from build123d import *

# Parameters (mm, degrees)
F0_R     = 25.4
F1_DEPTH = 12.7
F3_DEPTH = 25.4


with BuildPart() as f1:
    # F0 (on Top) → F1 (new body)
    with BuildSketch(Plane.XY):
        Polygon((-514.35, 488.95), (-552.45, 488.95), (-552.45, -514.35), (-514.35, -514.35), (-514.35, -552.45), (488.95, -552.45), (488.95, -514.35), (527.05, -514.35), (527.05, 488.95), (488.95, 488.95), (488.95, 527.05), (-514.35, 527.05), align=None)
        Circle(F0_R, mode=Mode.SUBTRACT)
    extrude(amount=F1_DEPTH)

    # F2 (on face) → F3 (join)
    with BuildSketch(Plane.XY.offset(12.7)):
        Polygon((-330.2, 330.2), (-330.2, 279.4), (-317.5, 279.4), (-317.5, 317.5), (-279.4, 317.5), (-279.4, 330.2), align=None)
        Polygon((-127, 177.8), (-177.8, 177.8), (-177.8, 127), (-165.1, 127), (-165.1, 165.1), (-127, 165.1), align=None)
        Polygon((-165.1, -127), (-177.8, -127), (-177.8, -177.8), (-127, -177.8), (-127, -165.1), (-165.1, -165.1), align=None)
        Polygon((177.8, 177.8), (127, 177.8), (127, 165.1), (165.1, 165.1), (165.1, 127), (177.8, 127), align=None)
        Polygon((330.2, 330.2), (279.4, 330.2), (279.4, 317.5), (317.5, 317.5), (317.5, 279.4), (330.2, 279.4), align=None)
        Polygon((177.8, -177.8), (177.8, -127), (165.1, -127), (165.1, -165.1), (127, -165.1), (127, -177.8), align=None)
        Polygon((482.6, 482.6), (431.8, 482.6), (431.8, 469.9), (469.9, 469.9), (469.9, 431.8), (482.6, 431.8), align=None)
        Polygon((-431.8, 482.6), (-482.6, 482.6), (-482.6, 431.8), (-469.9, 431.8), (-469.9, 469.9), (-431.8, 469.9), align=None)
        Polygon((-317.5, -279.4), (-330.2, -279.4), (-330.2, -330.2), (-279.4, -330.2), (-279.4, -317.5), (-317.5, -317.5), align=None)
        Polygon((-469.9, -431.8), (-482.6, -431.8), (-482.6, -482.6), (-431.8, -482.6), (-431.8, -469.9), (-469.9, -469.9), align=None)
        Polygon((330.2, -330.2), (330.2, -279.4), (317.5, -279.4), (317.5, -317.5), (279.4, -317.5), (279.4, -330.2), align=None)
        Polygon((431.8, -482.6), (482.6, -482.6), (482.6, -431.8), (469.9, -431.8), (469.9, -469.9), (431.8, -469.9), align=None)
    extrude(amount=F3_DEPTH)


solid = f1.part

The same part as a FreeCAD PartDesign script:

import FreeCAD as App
import Part
import Sketcher
Q = App.Units.Quantity

doc = App.newDocument("Part")
params = doc.addObject("Spreadsheet::Sheet", "Params")
for row, (alias, value) in enumerate([
    ("sketch1_diameter", "2 in"),
    ("sketch1_width", "1.5 in"),
    ("sketch1_width2", "39.5 in"),
    ("pad1_length", "0.5 in"),
    ("sketch2_width", "2 in"),
    ("sketch2_width2", "0.5 in"),
    ("pad2_length", "1 in"),
], start=1):
    params.set(f"A{row}", alias)
    params.set(f"B{row}", "=" + value)
    params.setAlias(f"B{row}", alias)

body = doc.addObject("PartDesign::Body", "Body")

# Sketch on XY plane
sketch1 = body.newObject("Sketcher::SketchObject", "Sketch")
sketch1.AttachmentSupport = (doc.getObject("XY_Plane"), [""])
sketch1.MapMode = "FlatFace"
sketch1.addGeometry([
    Part.LineSegment(App.Vector(-514, 489, 0), App.Vector(-552, 489, 0)),  # 0
    Part.LineSegment(App.Vector(-552, 489, 0), App.Vector(-552, -514, 0)),  # 1
    Part.LineSegment(App.Vector(-552, -514, 0), App.Vector(-514, -514, 0)),  # 2
    Part.LineSegment(App.Vector(-514, -514, 0), App.Vector(-514, -552, 0)),  # 3
    Part.LineSegment(App.Vector(-514, -552, 0), App.Vector(489, -552, 0)),  # 4
    Part.LineSegment(App.Vector(489, -552, 0), App.Vector(489, -514, 0)),  # 5
    Part.LineSegment(App.Vector(489, -514, 0), App.Vector(527, -514, 0)),  # 6
    Part.LineSegment(App.Vector(527, -514, 0), App.Vector(527, 489, 0)),  # 7
    Part.LineSegment(App.Vector(527, 489, 0), App.Vector(489, 489, 0)),  # 8
    Part.LineSegment(App.Vector(489, 489, 0), App.Vector(489, 527, 0)),  # 9
    Part.LineSegment(App.Vector(489, 527, 0), App.Vector(-514, 527, 0)),  # 10
    Part.LineSegment(App.Vector(-514, 527, 0), App.Vector(-514, 489, 0)),  # 11
    Part.Circle(App.Vector(0, 0, 0), App.Vector(0, 0, 1), 25),  # 12
], False)
sketch1.addConstraint([
    Sketcher.Constraint("Coincident", 0, 2, 1, 1),
    Sketcher.Constraint("Coincident", 1, 2, 2, 1),
    Sketcher.Constraint("Coincident", 2, 2, 3, 1),
    Sketcher.Constraint("Coincident", 3, 2, 4, 1),
    Sketcher.Constraint("Coincident", 4, 2, 5, 1),
    Sketcher.Constraint("Coincident", 5, 2, 6, 1),
    Sketcher.Constraint("Coincident", 6, 2, 7, 1),
    Sketcher.Constraint("Coincident", 7, 2, 8, 1),
    Sketcher.Constraint("Coincident", 8, 2, 9, 1),
    Sketcher.Constraint("Coincident", 9, 2, 10, 1),
    Sketcher.Constraint("Coincident", 10, 2, 11, 1),
    Sketcher.Constraint("Coincident", 11, 2, 0, 1),
    Sketcher.Constraint("Horizontal", 0),
    Sketcher.Constraint("Vertical", 1),
    Sketcher.Constraint("Horizontal", 2),
    Sketcher.Constraint("Vertical", 3),
    Sketcher.Constraint("Horizontal", 4),
    Sketcher.Constraint("Vertical", 5),
    Sketcher.Constraint("Horizontal", 6),
    Sketcher.Constraint("Vertical", 7),
    Sketcher.Constraint("Horizontal", 8),
    Sketcher.Constraint("Vertical", 9),
    Sketcher.Constraint("Horizontal", 10),
    Sketcher.Constraint("Vertical", 11),
    Sketcher.Constraint("Coincident", 12, 3, -1, 1),
    Sketcher.Constraint("Horizontal", 2, 2, 5, 2),
    Sketcher.Constraint("Horizontal", 0, 2, 7, 2),
    Sketcher.Constraint("Vertical", 5, 2, 8, 2),
    Sketcher.Constraint("Vertical", 3, 2, 10, 2),
    Sketcher.Constraint("Equal", 2, 6),
    Sketcher.Constraint("Equal", 10, 1),
    Sketcher.Constraint("Equal", 8, 3),
    Sketcher.Constraint("Equal", 5, 9),
    Sketcher.Constraint("Diameter", 12, Q("2 in")),
    Sketcher.Constraint("DistanceX", 0, 2, 0, 1, Q("1.5 in")),
    Sketcher.Constraint("DistanceX", 4, 1, 4, 2, Q("39.5 in")),
    Sketcher.Constraint("DistanceX", 0, 2, -1, 1, Q("21.75 in")),
    Sketcher.Constraint("DistanceY", -1, 1, 0, 2, Q("19.25 in")),
])
sketch1.setExpression("Constraints[33]", "Params.sketch1_diameter")
sketch1.setExpression("Constraints[34]", "Params.sketch1_width")
sketch1.setExpression("Constraints[35]", "Params.sketch1_width2")
pad1 = body.newObject("PartDesign::Pad", "Pad")
pad1.Profile = sketch1
pad1.setExpression("Length", "Params.pad1_length")

# Sketch on XY plane
sketch2 = body.newObject("Sketcher::SketchObject", "Sketch001")
sketch2.AttachmentSupport = (doc.getObject("XY_Plane"), [""])
sketch2.MapMode = "FlatFace"
sketch2.AttachmentOffset = App.Placement(App.Vector(0, 0, 0.5 * 25.4), App.Rotation())
sketch2.addGeometry([
    Part.LineSegment(App.Vector(-330, 330, 0), App.Vector(-330, 279, 0)),  # 0
    Part.LineSegment(App.Vector(-330, 279, 0), App.Vector(-318, 279, 0)),  # 1
    Part.LineSegment(App.Vector(-318, 279, 0), App.Vector(-318, 318, 0)),  # 2
    Part.LineSegment(App.Vector(-318, 318, 0), App.Vector(-279, 318, 0)),  # 3
    Part.LineSegment(App.Vector(-279, 318, 0), App.Vector(-279, 330, 0)),  # 4
    Part.LineSegment(App.Vector(-279, 330, 0), App.Vector(-330, 330, 0)),  # 5
    Part.LineSegment(App.Vector(-127, 178, 0), App.Vector(-178, 178, 0)),  # 6
    Part.LineSegment(App.Vector(-178, 178, 0), App.Vector(-178, 127, 0)),  # 7
    Part.LineSegment(App.Vector(-178, 127, 0), App.Vector(-165, 127, 0)),  # 8
    Part.LineSegment(App.Vector(-165, 127, 0), App.Vector(-165, 165, 0)),  # 9
    Part.LineSegment(App.Vector(-165, 165, 0), App.Vector(-127, 165, 0)),  # 10
    Part.LineSegment(App.Vector(-127, 165, 0), App.Vector(-127, 178, 0)),  # 11
    Part.LineSegment(App.Vector(-165, -127, 0), App.Vector(-178, -127, 0)),  # 12
    Part.LineSegment(App.Vector(-178, -127, 0), App.Vector(-178, -178, 0)),  # 13
    Part.LineSegment(App.Vector(-178, -178, 0), App.Vector(-127, -178, 0)),  # 14
    Part.LineSegment(App.Vector(-127, -178, 0), App.Vector(-127, -165, 0)),  # 15
    Part.LineSegment(App.Vector(-127, -165, 0), App.Vector(-165, -165, 0)),  # 16
    Part.LineSegment(App.Vector(-165, -165, 0), App.Vector(-165, -127, 0)),  # 17
    Part.LineSegment(App.Vector(178, 178, 0), App.Vector(127, 178, 0)),  # 18
    Part.LineSegment(App.Vector(127, 178, 0), App.Vector(127, 165, 0)),  # 19
    Part.LineSegment(App.Vector(127, 165, 0), App.Vector(165, 165, 0)),  # 20
    Part.LineSegment(App.Vector(165, 165, 0), App.Vector(165, 127, 0)),  # 21
    Part.LineSegment(App.Vector(165, 127, 0), App.Vector(178, 127, 0)),  # 22
    Part.LineSegment(App.Vector(178, 127, 0), App.Vector(178, 178, 0)),  # 23
    Part.LineSegment(App.Vector(330, 330, 0), App.Vector(279, 330, 0)),  # 24
    Part.LineSegment(App.Vector(279, 330, 0), App.Vector(279, 318, 0)),  # 25
    Part.LineSegment(App.Vector(279, 318, 0), App.Vector(318, 318, 0)),  # 26
    Part.LineSegment(App.Vector(318, 318, 0), App.Vector(318, 279, 0)),  # 27
    Part.LineSegment(App.Vector(318, 279, 0), App.Vector(330, 279, 0)),  # 28
    Part.LineSegment(App.Vector(330, 279, 0), App.Vector(330, 330, 0)),  # 29
    Part.LineSegment(App.Vector(178, -178, 0), App.Vector(178, -127, 0)),  # 30
    Part.LineSegment(App.Vector(178, -127, 0), App.Vector(165, -127, 0)),  # 31
    Part.LineSegment(App.Vector(165, -127, 0), App.Vector(165, -165, 0)),  # 32
    Part.LineSegment(App.Vector(165, -165, 0), App.Vector(127, -165, 0)),  # 33
    Part.LineSegment(App.Vector(127, -165, 0), App.Vector(127, -178, 0)),  # 34
    Part.LineSegment(App.Vector(127, -178, 0), App.Vector(178, -178, 0)),  # 35
    Part.LineSegment(App.Vector(483, 483, 0), App.Vector(432, 483, 0)),  # 36
    Part.LineSegment(App.Vector(432, 483, 0), App.Vector(432, 470, 0)),  # 37
    Part.LineSegment(App.Vector(432, 470, 0), App.Vector(470, 470, 0)),  # 38
    Part.LineSegment(App.Vector(470, 470, 0), App.Vector(470, 432, 0)),  # 39
    Part.LineSegment(App.Vector(470, 432, 0), App.Vector(483, 432, 0)),  # 40
    Part.LineSegment(App.Vector(483, 432, 0), App.Vector(483, 483, 0)),  # 41
    Part.LineSegment(App.Vector(-432, 483, 0), App.Vector(-483, 483, 0)),  # 42
    Part.LineSegment(App.Vector(-483, 483, 0), App.Vector(-483, 432, 0)),  # 43
    Part.LineSegment(App.Vector(-483, 432, 0), App.Vector(-470, 432, 0)),  # 44
    Part.LineSegment(App.Vector(-470, 432, 0), App.Vector(-470, 470, 0)),  # 45
    Part.LineSegment(App.Vector(-470, 470, 0), App.Vector(-432, 470, 0)),  # 46
    Part.LineSegment(App.Vector(-432, 470, 0), App.Vector(-432, 483, 0)),  # 47
    Part.LineSegment(App.Vector(-318, -279, 0), App.Vector(-330, -279, 0)),  # 48
    Part.LineSegment(App.Vector(-330, -279, 0), App.Vector(-330, -330, 0)),  # 49
    Part.LineSegment(App.Vector(-330, -330, 0), App.Vector(-279, -330, 0)),  # 50
    Part.LineSegment(App.Vector(-279, -330, 0), App.Vector(-279, -318, 0)),  # 51
    Part.LineSegment(App.Vector(-279, -318, 0), App.Vector(-318, -318, 0)),  # 52
    Part.LineSegment(App.Vector(-318, -318, 0), App.Vector(-318, -279, 0)),  # 53
    Part.LineSegment(App.Vector(-470, -432, 0), App.Vector(-483, -432, 0)),  # 54
    Part.LineSegment(App.Vector(-483, -432, 0), App.Vector(-483, -483, 0)),  # 55
    Part.LineSegment(App.Vector(-483, -483, 0), App.Vector(-432, -483, 0)),  # 56
    Part.LineSegment(App.Vector(-432, -483, 0), App.Vector(-432, -470, 0)),  # 57
    Part.LineSegment(App.Vector(-432, -470, 0), App.Vector(-470, -470, 0)),  # 58
    Part.LineSegment(App.Vector(-470, -470, 0), App.Vector(-470, -432, 0)),  # 59
    Part.LineSegment(App.Vector(330, -330, 0), App.Vector(330, -279, 0)),  # 60
    Part.LineSegment(App.Vector(330, -279, 0), App.Vector(318, -279, 0)),  # 61
    Part.LineSegment(App.Vector(318, -279, 0), App.Vector(318, -318, 0)),  # 62
    Part.LineSegment(App.Vector(318, -318, 0), App.Vector(279, -318, 0)),  # 63
    Part.LineSegment(App.Vector(279, -318, 0), App.Vector(279, -330, 0)),  # 64
    Part.LineSegment(App.Vector(279, -330, 0), App.Vector(330, -330, 0)),  # 65
    Part.LineSegment(App.Vector(432, -483, 0), App.Vector(483, -483, 0)),  # 66
    Part.LineSegment(App.Vector(483, -483, 0), App.Vector(483, -432, 0)),  # 67
    Part.LineSegment(App.Vector(483, -432, 0), App.Vector(470, -432, 0)),  # 68
    Part.LineSegment(App.Vector(470, -432, 0), App.Vector(470, -470, 0)),  # 69
    Part.LineSegment(App.Vector(470, -470, 0), App.Vector(432, -470, 0)),  # 70
    Part.LineSegment(App.Vector(432, -470, 0), App.Vector(432, -483, 0)),  # 71
], False)
sketch2.addConstraint([
    Sketcher.Constraint("Coincident", 0, 2, 1, 1),
    Sketcher.Constraint("Coincident", 1, 2, 2, 1),
    Sketcher.Constraint("Coincident", 2, 2, 3, 1),
    Sketcher.Constraint("Coincident", 3, 2, 4, 1),
    Sketcher.Constraint("Coincident", 4, 2, 5, 1),
    Sketcher.Constraint("Coincident", 5, 2, 0, 1),
    Sketcher.Constraint("Coincident", 6, 2, 7, 1),
    Sketcher.Constraint("Coincident", 7, 2, 8, 1),
    Sketcher.Constraint("Coincident", 8, 2, 9, 1),
    Sketcher.Constraint("Coincident", 9, 2, 10, 1),
    Sketcher.Constraint("Coincident", 10, 2, 11, 1),
    Sketcher.Constraint("Coincident", 11, 2, 6, 1),
    Sketcher.Constraint("Coincident", 12, 2, 13, 1),
    Sketcher.Constraint("Coincident", 13, 2, 14, 1),
    Sketcher.Constraint("Coincident", 14, 2, 15, 1),
    Sketcher.Constraint("Coincident", 15, 2, 16, 1),
    Sketcher.Constraint("Coincident", 16, 2, 17, 1),
    Sketcher.Constraint("Coincident", 17, 2, 12, 1),
    Sketcher.Constraint("Coincident", 18, 2, 19, 1),
    Sketcher.Constraint("Coincident", 19, 2, 20, 1),
    Sketcher.Constraint("Coincident", 20, 2, 21, 1),
    Sketcher.Constraint("Coincident", 21, 2, 22, 1),
    Sketcher.Constraint("Coincident", 22, 2, 23, 1),
    Sketcher.Constraint("Coincident", 23, 2, 18, 1),
    Sketcher.Constraint("Coincident", 24, 2, 25, 1),
    Sketcher.Constraint("Coincident", 25, 2, 26, 1),
    Sketcher.Constraint("Coincident", 26, 2, 27, 1),
    Sketcher.Constraint("Coincident", 27, 2, 28, 1),
    Sketcher.Constraint("Coincident", 28, 2, 29, 1),
    Sketcher.Constraint("Coincident", 29, 2, 24, 1),
    Sketcher.Constraint("Coincident", 30, 2, 31, 1),
    Sketcher.Constraint("Coincident", 31, 2, 32, 1),
    Sketcher.Constraint("Coincident", 32, 2, 33, 1),
    Sketcher.Constraint("Coincident", 33, 2, 34, 1),
    Sketcher.Constraint("Coincident", 34, 2, 35, 1),
    Sketcher.Constraint("Coincident", 35, 2, 30, 1),
    Sketcher.Constraint("Coincident", 36, 2, 37, 1),
    Sketcher.Constraint("Coincident", 37, 2, 38, 1),
    Sketcher.Constraint("Coincident", 38, 2, 39, 1),
    Sketcher.Constraint("Coincident", 39, 2, 40, 1),
    Sketcher.Constraint("Coincident", 40, 2, 41, 1),
    Sketcher.Constraint("Coincident", 41, 2, 36, 1),
    Sketcher.Constraint("Coincident", 42, 2, 43, 1),
    Sketcher.Constraint("Coincident", 43, 2, 44, 1),
    Sketcher.Constraint("Coincident", 44, 2, 45, 1),
    Sketcher.Constraint("Coincident", 45, 2, 46, 1),
    Sketcher.Constraint("Coincident", 46, 2, 47, 1),
    Sketcher.Constraint("Coincident", 47, 2, 42, 1),
    Sketcher.Constraint("Coincident", 48, 2, 49, 1),
    Sketcher.Constraint("Coincident", 49, 2, 50, 1),
    Sketcher.Constraint("Coincident", 50, 2, 51, 1),
    Sketcher.Constraint("Coincident", 51, 2, 52, 1),
    Sketcher.Constraint("Coincident", 52, 2, 53, 1),
    Sketcher.Constraint("Coincident", 53, 2, 48, 1),
    Sketcher.Constraint("Coincident", 54, 2, 55, 1),
    Sketcher.Constraint("Coincident", 55, 2, 56, 1),
    Sketcher.Constraint("Coincident", 56, 2, 57, 1),
    Sketcher.Constraint("Coincident", 57, 2, 58, 1),
    Sketcher.Constraint("Coincident", 58, 2, 59, 1),
    Sketcher.Constraint("Coincident", 59, 2, 54, 1),
    Sketcher.Constraint("Coincident", 60, 2, 61, 1),
    Sketcher.Constraint("Coincident", 61, 2, 62, 1),
    Sketcher.Constraint("Coincident", 62, 2, 63, 1),
    Sketcher.Constraint("Coincident", 63, 2, 64, 1),
    Sketcher.Constraint("Coincident", 64, 2, 65, 1),
    Sketcher.Constraint("Coincident", 65, 2, 60, 1),
    Sketcher.Constraint("Coincident", 66, 2, 67, 1),
    Sketcher.Constraint("Coincident", 67, 2, 68, 1),
    Sketcher.Constraint("Coincident", 68, 2, 69, 1),
    Sketcher.Constraint("Coincident", 69, 2, 70, 1),
    Sketcher.Constraint("Coincident", 70, 2, 71, 1),
    Sketcher.Constraint("Coincident", 71, 2, 66, 1),
    Sketcher.Constraint("Vertical", 0),
    Sketcher.Constraint("Horizontal", 1),
    Sketcher.Constraint("Vertical", 2),
    Sketcher.Constraint("Horizontal", 3),
    Sketcher.Constraint("Vertical", 4),
    Sketcher.Constraint("Horizontal", 5),
    Sketcher.Constraint("Horizontal", 6),
    Sketcher.Constraint("Vertical", 7),
    Sketcher.Constraint("Horizontal", 8),
    Sketcher.Constraint("Vertical", 9),
    Sketcher.Constraint("Horizontal", 10),
    Sketcher.Constraint("Vertical", 11),
    Sketcher.Constraint("Horizontal", 12),
    Sketcher.Constraint("Vertical", 13),
    Sketcher.Constraint("Horizontal", 14),
    Sketcher.Constraint("Vertical", 15),
    Sketcher.Constraint("Horizontal", 16),
    Sketcher.Constraint("Vertical", 17),
    Sketcher.Constraint("Horizontal", 18),
    Sketcher.Constraint("Vertical", 19),
    Sketcher.Constraint("Horizontal", 20),
    Sketcher.Constraint("Vertical", 21),
    Sketcher.Constraint("Horizontal", 22),
    Sketcher.Constraint("Vertical", 23),
    Sketcher.Constraint("Horizontal", 24),
    Sketcher.Constraint("Vertical", 25),
    Sketcher.Constraint("Horizontal", 26),
    Sketcher.Constraint("Vertical", 27),
    Sketcher.Constraint("Horizontal", 28),
    Sketcher.Constraint("Vertical", 29),
    Sketcher.Constraint("Vertical", 30),
    Sketcher.Constraint("Horizontal", 31),
    Sketcher.Constraint("Vertical", 32),
    Sketcher.Constraint("Horizontal", 33),
    Sketcher.Constraint("Vertical", 34),
    Sketcher.Constraint("Horizontal", 35),
    Sketcher.Constraint("Horizontal", 36),
    Sketcher.Constraint("Vertical", 37),
    Sketcher.Constraint("Horizontal", 38),
    Sketcher.Constraint("Vertical", 39),
    Sketcher.Constraint("Horizontal", 40),
    Sketcher.Constraint("Vertical", 41),
    Sketcher.Constraint("Horizontal", 42),
    Sketcher.Constraint("Vertical", 43),
    Sketcher.Constraint("Horizontal", 44),
    Sketcher.Constraint("Vertical", 45),
    Sketcher.Constraint("Horizontal", 46),
    Sketcher.Constraint("Vertical", 47),
    Sketcher.Constraint("Horizontal", 48),
    Sketcher.Constraint("Vertical", 49),
    Sketcher.Constraint("Horizontal", 50),
    Sketcher.Constraint("Vertical", 51),
    Sketcher.Constraint("Horizontal", 52),
    Sketcher.Constraint("Vertical", 53),
    Sketcher.Constraint("Horizontal", 54),
    Sketcher.Constraint("Vertical", 55),
    Sketcher.Constraint("Horizontal", 56),
    Sketcher.Constraint("Vertical", 57),
    Sketcher.Constraint("Horizontal", 58),
    Sketcher.Constraint("Vertical", 59),
    Sketcher.Constraint("Vertical", 60),
    Sketcher.Constraint("Horizontal", 61),
    Sketcher.Constraint("Vertical", 62),
    Sketcher.Constraint("Horizontal", 63),
    Sketcher.Constraint("Vertical", 64),
    Sketcher.Constraint("Horizontal", 65),
    Sketcher.Constraint("Horizontal", 66),
    Sketcher.Constraint("Vertical", 67),
    Sketcher.Constraint("Horizontal", 68),
    Sketcher.Constraint("Vertical", 69),
    Sketcher.Constraint("Horizontal", 70),
    Sketcher.Constraint("Vertical", 71),
    Sketcher.Constraint("Symmetric", 14, 2, 18, 2, -1, 1),
    Sketcher.Constraint("Symmetric", 16, 2, 20, 2, -1, 1),
    Sketcher.Constraint("Symmetric", 12, 2, 22, 2, -1, 1),
    Sketcher.Constraint("Symmetric", 7, 2, 30, 2, -1, 1),
    Sketcher.Constraint("Symmetric", 9, 2, 32, 2, -1, 1),
    Sketcher.Constraint("Symmetric", 11, 2, 34, 2, -1, 1),
    Sketcher.Constraint("Symmetric", 28, 2, 48, 2, -1, 1),
    Sketcher.Constraint("Symmetric", 24, 2, 50, 2, -1, 1),
    Sketcher.Constraint("Symmetric", 26, 2, 52, 2, -1, 1),
    Sketcher.Constraint("Symmetric", 40, 2, 54, 2, -1, 1),
    Sketcher.Constraint("Symmetric", 36, 2, 56, 2, -1, 1),
    Sketcher.Constraint("Symmetric", 38, 2, 58, 2, -1, 1),
    Sketcher.Constraint("Symmetric", 0, 2, 60, 2, -1, 1),
    Sketcher.Constraint("Symmetric", 2, 2, 62, 2, -1, 1),
    Sketcher.Constraint("Symmetric", 4, 2, 64, 2, -1, 1),
    Sketcher.Constraint("Symmetric", 42, 2, 66, 2, -1, 1),
    Sketcher.Constraint("Symmetric", 44, 2, 68, 2, -1, 1),
    Sketcher.Constraint("Symmetric", 46, 2, 70, 2, -1, 1),
    Sketcher.Constraint("Symmetric", 11, 2, 18, 2, -2),
    Sketcher.Constraint("Symmetric", 9, 2, 20, 2, -2),
    Sketcher.Constraint("Symmetric", 7, 2, 22, 2, -2),
    Sketcher.Constraint("Symmetric", 4, 2, 24, 2, -2),
    Sketcher.Constraint("Symmetric", 2, 2, 26, 2, -2),
    Sketcher.Constraint("Symmetric", 0, 2, 28, 2, -2),
    Sketcher.Constraint("Symmetric", 41, 2, 42, 2, -2),
    Sketcher.Constraint("Symmetric", 39, 2, 44, 2, -2),
    Sketcher.Constraint("Symmetric", 37, 2, 46, 2, -2),
    Sketcher.Constraint("Equal", 5, 6),
    Sketcher.Constraint("Equal", 1, 8),
    Sketcher.Constraint("Equal", 35, 36),
    Sketcher.Constraint("Equal", 33, 38),
    Sketcher.Constraint("Equal", 66, 0),
    Sketcher.Constraint("Equal", 70, 2),
    Sketcher.Constraint("Equal", 0, 7),
    Sketcher.Constraint("Equal", 2, 9),
    Sketcher.Constraint("Equal", 34, 37),
    Sketcher.Constraint("Equal", 32, 39),
    Sketcher.Constraint("DistanceX", 5, 2, 5, 1, Q("2 in")),
    Sketcher.Constraint("DistanceX", 1, 1, 1, 2, Q("0.5 in")),
    Sketcher.Constraint("DistanceX", 0, 2, -1, 1, Q("13 in")),
    Sketcher.Constraint("DistanceY", -1, 1, 0, 2, Q("11 in")),
    Sketcher.Constraint("DistanceX", 6, 2, -1, 1, Q("7 in")),
    Sketcher.Constraint("DistanceY", -1, 1, 6, 2, Q("7 in")),
    Sketcher.Constraint("DistanceX", -1, 1, 36, 2, Q("17 in")),
    Sketcher.Constraint("DistanceY", -1, 1, 36, 2, Q("19 in")),
])
sketch2.setExpression("Constraints[181]", "Params.sketch2_width")
sketch2.setExpression("Constraints[182]", "Params.sketch2_width2")
pad2 = body.newObject("PartDesign::Pad", "Pad001")
pad2.Profile = sketch2
pad2.setExpression("Length", "Params.pad2_length")

doc.recompute()
